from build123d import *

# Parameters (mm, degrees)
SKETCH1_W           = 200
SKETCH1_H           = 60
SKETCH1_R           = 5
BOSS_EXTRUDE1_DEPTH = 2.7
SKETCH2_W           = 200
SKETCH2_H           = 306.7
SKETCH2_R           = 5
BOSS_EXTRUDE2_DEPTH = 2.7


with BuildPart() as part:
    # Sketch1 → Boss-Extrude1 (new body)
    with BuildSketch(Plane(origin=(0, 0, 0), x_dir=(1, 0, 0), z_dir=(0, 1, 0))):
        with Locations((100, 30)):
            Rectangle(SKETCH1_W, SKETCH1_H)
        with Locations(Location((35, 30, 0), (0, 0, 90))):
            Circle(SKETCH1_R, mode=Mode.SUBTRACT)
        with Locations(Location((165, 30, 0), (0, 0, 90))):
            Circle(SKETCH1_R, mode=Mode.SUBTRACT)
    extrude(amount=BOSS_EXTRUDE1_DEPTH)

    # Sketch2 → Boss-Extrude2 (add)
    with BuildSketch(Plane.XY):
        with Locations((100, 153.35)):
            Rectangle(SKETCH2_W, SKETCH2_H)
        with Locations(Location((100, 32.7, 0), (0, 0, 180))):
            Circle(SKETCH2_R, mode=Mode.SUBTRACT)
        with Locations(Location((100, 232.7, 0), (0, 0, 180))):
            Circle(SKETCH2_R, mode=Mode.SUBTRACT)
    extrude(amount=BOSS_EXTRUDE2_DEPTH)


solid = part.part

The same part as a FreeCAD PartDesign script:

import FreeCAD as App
import Part
import Sketcher
from FreeCAD import Vector

doc = App.newDocument("Part")
body = doc.addObject("PartDesign::Body", "Body")

# Sketch on XZ plane
sketch1 = body.newObject("Sketcher::SketchObject", "Sketch")
sketch1.AttachmentSupport = (doc.getObject("XZ_Plane"), [""])
sketch1.MapMode = "FlatFace"
sketch1.addGeometry([
    Part.LineSegment(Vector(0, -60, 0), Vector(0, 0, 0)),  # 0
    Part.LineSegment(Vector(0, 0, 0), Vector(200, 0, 0)),  # 1
    Part.LineSegment(Vector(200, 0, 0), Vector(200, -60, 0)),  # 2
    Part.LineSegment(Vector(200, -60, 0), Vector(0, -60, 0)),  # 3
    Part.Circle(Vector(35, -30, 0), Vector(0, 0, 1), 5),  # 4
    Part.Circle(Vector(165, -30, 0), Vector(0, 0, 1), 5),  # 5
], False)
sketch1.addConstraint([
    Sketcher.Constraint("Coincident", 0, 2, 1, 1),
    Sketcher.Constraint("Coincident", 1, 2, 2, 1),
    Sketcher.Constraint("Coincident", 2, 2, 3, 1),
    Sketcher.Constraint("Coincident", 3, 2, 0, 1),
    Sketcher.Constraint("Vertical", 0),
    Sketcher.Constraint("Horizontal", 1),
    Sketcher.Constraint("Vertical", 2),
    Sketcher.Constraint("Horizontal", 3),
    Sketcher.Constraint("Coincident", 0, 2, -1, 1),
    Sketcher.Constraint("Equal", 4, 5),
    Sketcher.Constraint("Horizontal", 4, 3, 5, 3),
    Sketcher.Constraint("Diameter", 4, 10.0),
    Sketcher.Constraint("DistanceX", 1, 1, 1, 2, 200.0),
    Sketcher.Constraint("DistanceY", 0, 1, 0, 2, 60.0),
    Sketcher.Constraint("DistanceX", -1, 1, 4, 3, 35.0),
    Sketcher.Constraint("DistanceY", 4, 3, -1, 1, 30.0),
    Sketcher.Constraint("DistanceX", -1, 1, 5, 3, 165.0),
])
pad1 = body.newObject("PartDesign::Pad", "Pad")
pad1.Profile = sketch1
pad1.Length = 2.7
pad1.Reversed = True

# Sketch on XY plane
sketch2 = body.newObject("Sketcher::SketchObject", "Sketch001")
sketch2.AttachmentSupport = (doc.getObject("XY_Plane"), [""])
sketch2.MapMode = "FlatFace"
sketch2.addGeometry([
    Part.LineSegment(Vector(0, 306.7, 0), Vector(0, 0, 0)),  # 0
    Part.LineSegment(Vector(0, 0, 0), Vector(200, 0, 0)),  # 1
    Part.LineSegment(Vector(200, 0, 0), Vector(200, 306.7, 0)),  # 2
    Part.LineSegment(Vector(200, 306.7, 0), Vector(0, 306.7, 0)),  # 3
    Part.Circle(Vector(100, 32.7, 0), Vector(0, 0, 1), 5),  # 4
    Part.Circle(Vector(100, 232.7, 0), Vector(0, 0, 1), 5),  # 5
], False)
sketch2.addConstraint([
    Sketcher.Constraint("Coincident", 0, 2, 1, 1),
    Sketcher.Constraint("Coincident", 1, 2, 2, 1),
    Sketcher.Constraint("Coincident", 2, 2, 3, 1),
    Sketcher.Constraint("Coincident", 3, 2, 0, 1),
    Sketcher.Constraint("Vertical", 0),
    Sketcher.Constraint("Horizontal", 1),
    Sketcher.Constraint("Vertical", 2),
    Sketcher.Constraint("Horizontal", 3),
    Sketcher.Constraint("Coincident", 0, 2, -1, 1),
    Sketcher.Constraint("Equal", 4, 5),
    Sketcher.Constraint("Vertical", 4, 3, 5, 3),
    Sketcher.Constraint("Diameter", 4, 10.0),
    Sketcher.Constraint("DistanceX", 1, 1, 1, 2, 200.0),
    Sketcher.Constraint("DistanceY", 0, 2, 0, 1, 306.7),
    Sketcher.Constraint("DistanceX", -1, 1, 4, 3, 100.0),
    Sketcher.Constraint("DistanceY", 4, 3, 5, 3, 200.0),
    Sketcher.Constraint("DistanceY", 5, 3, 2, 2, 74.0),
])
pad2 = body.newObject("PartDesign::Pad", "Pad001")
pad2.Profile = sketch2
pad2.Length = 2.7

doc.recompute()
